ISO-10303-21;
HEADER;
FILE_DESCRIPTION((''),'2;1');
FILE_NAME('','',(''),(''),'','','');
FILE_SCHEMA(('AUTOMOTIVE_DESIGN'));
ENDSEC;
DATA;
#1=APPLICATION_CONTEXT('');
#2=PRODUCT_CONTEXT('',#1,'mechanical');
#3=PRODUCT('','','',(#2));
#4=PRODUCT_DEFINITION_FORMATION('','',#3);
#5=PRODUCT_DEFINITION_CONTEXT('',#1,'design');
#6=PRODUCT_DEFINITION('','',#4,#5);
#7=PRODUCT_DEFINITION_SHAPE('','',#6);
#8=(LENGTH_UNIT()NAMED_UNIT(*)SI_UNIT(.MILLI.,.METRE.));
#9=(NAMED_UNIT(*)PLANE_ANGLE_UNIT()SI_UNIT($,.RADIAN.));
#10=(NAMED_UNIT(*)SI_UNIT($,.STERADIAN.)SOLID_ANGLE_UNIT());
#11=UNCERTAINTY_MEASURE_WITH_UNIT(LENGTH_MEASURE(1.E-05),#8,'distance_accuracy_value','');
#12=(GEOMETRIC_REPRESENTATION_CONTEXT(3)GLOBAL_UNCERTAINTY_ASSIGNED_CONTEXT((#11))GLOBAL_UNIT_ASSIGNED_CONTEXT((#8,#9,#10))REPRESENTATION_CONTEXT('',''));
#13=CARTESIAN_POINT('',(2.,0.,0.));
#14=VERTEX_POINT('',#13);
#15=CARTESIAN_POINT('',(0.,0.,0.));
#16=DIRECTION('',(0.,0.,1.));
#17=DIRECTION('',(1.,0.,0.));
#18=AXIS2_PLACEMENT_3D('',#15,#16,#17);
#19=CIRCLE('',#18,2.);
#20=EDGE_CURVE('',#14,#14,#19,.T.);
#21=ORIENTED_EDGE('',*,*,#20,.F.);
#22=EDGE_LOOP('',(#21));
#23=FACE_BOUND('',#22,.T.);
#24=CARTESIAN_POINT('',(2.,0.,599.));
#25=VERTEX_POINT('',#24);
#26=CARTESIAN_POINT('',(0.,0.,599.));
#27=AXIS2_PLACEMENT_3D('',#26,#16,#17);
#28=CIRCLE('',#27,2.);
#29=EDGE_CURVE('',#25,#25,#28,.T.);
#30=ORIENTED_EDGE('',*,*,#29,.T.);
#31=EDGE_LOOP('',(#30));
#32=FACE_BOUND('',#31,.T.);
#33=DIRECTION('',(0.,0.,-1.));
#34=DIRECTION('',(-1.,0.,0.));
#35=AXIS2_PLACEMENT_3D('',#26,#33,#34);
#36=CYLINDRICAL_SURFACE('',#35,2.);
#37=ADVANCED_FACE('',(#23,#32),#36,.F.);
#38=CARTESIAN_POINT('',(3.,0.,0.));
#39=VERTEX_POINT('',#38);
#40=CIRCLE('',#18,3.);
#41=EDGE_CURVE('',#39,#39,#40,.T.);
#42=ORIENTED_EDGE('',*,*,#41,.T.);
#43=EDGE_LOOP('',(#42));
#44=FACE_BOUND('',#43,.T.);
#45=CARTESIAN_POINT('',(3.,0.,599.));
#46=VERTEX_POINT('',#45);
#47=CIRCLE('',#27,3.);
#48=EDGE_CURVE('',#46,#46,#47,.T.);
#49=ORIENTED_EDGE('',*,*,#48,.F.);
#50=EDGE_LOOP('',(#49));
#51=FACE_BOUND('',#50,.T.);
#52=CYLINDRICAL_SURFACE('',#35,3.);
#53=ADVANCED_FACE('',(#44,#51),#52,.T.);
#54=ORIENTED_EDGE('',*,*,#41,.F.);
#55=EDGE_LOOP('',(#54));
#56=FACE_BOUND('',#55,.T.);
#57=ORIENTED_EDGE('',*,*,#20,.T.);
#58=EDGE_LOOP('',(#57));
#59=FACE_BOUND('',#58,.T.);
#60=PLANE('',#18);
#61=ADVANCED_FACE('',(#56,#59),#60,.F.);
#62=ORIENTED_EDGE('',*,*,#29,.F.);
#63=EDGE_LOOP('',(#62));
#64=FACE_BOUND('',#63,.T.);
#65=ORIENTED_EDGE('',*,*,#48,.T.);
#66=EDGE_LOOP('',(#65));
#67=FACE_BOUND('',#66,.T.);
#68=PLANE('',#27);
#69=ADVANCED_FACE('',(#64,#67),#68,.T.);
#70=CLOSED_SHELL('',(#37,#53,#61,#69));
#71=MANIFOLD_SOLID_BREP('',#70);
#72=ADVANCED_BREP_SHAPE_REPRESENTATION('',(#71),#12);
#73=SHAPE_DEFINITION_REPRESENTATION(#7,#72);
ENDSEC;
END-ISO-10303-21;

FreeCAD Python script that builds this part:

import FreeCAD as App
import Part
import Sketcher

V = App.Vector
Q = App.Units.Quantity

doc = App.newDocument("Part")
body = doc.addObject("PartDesign::Body", "Body")

sketch1 = body.newObject("Sketcher::SketchObject", "Sketch")
sketch1.AttachmentSupport = (doc.getObject("XY_Plane"), [""])
sketch1.MapMode = "FlatFace"
sketch1.addGeometry([
    Part.Circle(V(0, 0, 0), V(0, 0, 1), 3),
    Part.Circle(V(0, 0, 0), V(0, 0, 1), 2),
], False)
sketch1.addConstraint([
    Sketcher.Constraint("Coincident", 0, 3, -1, 1),
    Sketcher.Constraint("Coincident", 1, 3, -1, 1),
    Sketcher.Constraint("Diameter", 0, Q("6 mm")),
    Sketcher.Constraint("Diameter", 1, Q("4 mm")),
])
pad1 = body.newObject("PartDesign::Pad", "Pad")
pad1.Profile = sketch1
pad1.Length = 599

doc.recompute()
